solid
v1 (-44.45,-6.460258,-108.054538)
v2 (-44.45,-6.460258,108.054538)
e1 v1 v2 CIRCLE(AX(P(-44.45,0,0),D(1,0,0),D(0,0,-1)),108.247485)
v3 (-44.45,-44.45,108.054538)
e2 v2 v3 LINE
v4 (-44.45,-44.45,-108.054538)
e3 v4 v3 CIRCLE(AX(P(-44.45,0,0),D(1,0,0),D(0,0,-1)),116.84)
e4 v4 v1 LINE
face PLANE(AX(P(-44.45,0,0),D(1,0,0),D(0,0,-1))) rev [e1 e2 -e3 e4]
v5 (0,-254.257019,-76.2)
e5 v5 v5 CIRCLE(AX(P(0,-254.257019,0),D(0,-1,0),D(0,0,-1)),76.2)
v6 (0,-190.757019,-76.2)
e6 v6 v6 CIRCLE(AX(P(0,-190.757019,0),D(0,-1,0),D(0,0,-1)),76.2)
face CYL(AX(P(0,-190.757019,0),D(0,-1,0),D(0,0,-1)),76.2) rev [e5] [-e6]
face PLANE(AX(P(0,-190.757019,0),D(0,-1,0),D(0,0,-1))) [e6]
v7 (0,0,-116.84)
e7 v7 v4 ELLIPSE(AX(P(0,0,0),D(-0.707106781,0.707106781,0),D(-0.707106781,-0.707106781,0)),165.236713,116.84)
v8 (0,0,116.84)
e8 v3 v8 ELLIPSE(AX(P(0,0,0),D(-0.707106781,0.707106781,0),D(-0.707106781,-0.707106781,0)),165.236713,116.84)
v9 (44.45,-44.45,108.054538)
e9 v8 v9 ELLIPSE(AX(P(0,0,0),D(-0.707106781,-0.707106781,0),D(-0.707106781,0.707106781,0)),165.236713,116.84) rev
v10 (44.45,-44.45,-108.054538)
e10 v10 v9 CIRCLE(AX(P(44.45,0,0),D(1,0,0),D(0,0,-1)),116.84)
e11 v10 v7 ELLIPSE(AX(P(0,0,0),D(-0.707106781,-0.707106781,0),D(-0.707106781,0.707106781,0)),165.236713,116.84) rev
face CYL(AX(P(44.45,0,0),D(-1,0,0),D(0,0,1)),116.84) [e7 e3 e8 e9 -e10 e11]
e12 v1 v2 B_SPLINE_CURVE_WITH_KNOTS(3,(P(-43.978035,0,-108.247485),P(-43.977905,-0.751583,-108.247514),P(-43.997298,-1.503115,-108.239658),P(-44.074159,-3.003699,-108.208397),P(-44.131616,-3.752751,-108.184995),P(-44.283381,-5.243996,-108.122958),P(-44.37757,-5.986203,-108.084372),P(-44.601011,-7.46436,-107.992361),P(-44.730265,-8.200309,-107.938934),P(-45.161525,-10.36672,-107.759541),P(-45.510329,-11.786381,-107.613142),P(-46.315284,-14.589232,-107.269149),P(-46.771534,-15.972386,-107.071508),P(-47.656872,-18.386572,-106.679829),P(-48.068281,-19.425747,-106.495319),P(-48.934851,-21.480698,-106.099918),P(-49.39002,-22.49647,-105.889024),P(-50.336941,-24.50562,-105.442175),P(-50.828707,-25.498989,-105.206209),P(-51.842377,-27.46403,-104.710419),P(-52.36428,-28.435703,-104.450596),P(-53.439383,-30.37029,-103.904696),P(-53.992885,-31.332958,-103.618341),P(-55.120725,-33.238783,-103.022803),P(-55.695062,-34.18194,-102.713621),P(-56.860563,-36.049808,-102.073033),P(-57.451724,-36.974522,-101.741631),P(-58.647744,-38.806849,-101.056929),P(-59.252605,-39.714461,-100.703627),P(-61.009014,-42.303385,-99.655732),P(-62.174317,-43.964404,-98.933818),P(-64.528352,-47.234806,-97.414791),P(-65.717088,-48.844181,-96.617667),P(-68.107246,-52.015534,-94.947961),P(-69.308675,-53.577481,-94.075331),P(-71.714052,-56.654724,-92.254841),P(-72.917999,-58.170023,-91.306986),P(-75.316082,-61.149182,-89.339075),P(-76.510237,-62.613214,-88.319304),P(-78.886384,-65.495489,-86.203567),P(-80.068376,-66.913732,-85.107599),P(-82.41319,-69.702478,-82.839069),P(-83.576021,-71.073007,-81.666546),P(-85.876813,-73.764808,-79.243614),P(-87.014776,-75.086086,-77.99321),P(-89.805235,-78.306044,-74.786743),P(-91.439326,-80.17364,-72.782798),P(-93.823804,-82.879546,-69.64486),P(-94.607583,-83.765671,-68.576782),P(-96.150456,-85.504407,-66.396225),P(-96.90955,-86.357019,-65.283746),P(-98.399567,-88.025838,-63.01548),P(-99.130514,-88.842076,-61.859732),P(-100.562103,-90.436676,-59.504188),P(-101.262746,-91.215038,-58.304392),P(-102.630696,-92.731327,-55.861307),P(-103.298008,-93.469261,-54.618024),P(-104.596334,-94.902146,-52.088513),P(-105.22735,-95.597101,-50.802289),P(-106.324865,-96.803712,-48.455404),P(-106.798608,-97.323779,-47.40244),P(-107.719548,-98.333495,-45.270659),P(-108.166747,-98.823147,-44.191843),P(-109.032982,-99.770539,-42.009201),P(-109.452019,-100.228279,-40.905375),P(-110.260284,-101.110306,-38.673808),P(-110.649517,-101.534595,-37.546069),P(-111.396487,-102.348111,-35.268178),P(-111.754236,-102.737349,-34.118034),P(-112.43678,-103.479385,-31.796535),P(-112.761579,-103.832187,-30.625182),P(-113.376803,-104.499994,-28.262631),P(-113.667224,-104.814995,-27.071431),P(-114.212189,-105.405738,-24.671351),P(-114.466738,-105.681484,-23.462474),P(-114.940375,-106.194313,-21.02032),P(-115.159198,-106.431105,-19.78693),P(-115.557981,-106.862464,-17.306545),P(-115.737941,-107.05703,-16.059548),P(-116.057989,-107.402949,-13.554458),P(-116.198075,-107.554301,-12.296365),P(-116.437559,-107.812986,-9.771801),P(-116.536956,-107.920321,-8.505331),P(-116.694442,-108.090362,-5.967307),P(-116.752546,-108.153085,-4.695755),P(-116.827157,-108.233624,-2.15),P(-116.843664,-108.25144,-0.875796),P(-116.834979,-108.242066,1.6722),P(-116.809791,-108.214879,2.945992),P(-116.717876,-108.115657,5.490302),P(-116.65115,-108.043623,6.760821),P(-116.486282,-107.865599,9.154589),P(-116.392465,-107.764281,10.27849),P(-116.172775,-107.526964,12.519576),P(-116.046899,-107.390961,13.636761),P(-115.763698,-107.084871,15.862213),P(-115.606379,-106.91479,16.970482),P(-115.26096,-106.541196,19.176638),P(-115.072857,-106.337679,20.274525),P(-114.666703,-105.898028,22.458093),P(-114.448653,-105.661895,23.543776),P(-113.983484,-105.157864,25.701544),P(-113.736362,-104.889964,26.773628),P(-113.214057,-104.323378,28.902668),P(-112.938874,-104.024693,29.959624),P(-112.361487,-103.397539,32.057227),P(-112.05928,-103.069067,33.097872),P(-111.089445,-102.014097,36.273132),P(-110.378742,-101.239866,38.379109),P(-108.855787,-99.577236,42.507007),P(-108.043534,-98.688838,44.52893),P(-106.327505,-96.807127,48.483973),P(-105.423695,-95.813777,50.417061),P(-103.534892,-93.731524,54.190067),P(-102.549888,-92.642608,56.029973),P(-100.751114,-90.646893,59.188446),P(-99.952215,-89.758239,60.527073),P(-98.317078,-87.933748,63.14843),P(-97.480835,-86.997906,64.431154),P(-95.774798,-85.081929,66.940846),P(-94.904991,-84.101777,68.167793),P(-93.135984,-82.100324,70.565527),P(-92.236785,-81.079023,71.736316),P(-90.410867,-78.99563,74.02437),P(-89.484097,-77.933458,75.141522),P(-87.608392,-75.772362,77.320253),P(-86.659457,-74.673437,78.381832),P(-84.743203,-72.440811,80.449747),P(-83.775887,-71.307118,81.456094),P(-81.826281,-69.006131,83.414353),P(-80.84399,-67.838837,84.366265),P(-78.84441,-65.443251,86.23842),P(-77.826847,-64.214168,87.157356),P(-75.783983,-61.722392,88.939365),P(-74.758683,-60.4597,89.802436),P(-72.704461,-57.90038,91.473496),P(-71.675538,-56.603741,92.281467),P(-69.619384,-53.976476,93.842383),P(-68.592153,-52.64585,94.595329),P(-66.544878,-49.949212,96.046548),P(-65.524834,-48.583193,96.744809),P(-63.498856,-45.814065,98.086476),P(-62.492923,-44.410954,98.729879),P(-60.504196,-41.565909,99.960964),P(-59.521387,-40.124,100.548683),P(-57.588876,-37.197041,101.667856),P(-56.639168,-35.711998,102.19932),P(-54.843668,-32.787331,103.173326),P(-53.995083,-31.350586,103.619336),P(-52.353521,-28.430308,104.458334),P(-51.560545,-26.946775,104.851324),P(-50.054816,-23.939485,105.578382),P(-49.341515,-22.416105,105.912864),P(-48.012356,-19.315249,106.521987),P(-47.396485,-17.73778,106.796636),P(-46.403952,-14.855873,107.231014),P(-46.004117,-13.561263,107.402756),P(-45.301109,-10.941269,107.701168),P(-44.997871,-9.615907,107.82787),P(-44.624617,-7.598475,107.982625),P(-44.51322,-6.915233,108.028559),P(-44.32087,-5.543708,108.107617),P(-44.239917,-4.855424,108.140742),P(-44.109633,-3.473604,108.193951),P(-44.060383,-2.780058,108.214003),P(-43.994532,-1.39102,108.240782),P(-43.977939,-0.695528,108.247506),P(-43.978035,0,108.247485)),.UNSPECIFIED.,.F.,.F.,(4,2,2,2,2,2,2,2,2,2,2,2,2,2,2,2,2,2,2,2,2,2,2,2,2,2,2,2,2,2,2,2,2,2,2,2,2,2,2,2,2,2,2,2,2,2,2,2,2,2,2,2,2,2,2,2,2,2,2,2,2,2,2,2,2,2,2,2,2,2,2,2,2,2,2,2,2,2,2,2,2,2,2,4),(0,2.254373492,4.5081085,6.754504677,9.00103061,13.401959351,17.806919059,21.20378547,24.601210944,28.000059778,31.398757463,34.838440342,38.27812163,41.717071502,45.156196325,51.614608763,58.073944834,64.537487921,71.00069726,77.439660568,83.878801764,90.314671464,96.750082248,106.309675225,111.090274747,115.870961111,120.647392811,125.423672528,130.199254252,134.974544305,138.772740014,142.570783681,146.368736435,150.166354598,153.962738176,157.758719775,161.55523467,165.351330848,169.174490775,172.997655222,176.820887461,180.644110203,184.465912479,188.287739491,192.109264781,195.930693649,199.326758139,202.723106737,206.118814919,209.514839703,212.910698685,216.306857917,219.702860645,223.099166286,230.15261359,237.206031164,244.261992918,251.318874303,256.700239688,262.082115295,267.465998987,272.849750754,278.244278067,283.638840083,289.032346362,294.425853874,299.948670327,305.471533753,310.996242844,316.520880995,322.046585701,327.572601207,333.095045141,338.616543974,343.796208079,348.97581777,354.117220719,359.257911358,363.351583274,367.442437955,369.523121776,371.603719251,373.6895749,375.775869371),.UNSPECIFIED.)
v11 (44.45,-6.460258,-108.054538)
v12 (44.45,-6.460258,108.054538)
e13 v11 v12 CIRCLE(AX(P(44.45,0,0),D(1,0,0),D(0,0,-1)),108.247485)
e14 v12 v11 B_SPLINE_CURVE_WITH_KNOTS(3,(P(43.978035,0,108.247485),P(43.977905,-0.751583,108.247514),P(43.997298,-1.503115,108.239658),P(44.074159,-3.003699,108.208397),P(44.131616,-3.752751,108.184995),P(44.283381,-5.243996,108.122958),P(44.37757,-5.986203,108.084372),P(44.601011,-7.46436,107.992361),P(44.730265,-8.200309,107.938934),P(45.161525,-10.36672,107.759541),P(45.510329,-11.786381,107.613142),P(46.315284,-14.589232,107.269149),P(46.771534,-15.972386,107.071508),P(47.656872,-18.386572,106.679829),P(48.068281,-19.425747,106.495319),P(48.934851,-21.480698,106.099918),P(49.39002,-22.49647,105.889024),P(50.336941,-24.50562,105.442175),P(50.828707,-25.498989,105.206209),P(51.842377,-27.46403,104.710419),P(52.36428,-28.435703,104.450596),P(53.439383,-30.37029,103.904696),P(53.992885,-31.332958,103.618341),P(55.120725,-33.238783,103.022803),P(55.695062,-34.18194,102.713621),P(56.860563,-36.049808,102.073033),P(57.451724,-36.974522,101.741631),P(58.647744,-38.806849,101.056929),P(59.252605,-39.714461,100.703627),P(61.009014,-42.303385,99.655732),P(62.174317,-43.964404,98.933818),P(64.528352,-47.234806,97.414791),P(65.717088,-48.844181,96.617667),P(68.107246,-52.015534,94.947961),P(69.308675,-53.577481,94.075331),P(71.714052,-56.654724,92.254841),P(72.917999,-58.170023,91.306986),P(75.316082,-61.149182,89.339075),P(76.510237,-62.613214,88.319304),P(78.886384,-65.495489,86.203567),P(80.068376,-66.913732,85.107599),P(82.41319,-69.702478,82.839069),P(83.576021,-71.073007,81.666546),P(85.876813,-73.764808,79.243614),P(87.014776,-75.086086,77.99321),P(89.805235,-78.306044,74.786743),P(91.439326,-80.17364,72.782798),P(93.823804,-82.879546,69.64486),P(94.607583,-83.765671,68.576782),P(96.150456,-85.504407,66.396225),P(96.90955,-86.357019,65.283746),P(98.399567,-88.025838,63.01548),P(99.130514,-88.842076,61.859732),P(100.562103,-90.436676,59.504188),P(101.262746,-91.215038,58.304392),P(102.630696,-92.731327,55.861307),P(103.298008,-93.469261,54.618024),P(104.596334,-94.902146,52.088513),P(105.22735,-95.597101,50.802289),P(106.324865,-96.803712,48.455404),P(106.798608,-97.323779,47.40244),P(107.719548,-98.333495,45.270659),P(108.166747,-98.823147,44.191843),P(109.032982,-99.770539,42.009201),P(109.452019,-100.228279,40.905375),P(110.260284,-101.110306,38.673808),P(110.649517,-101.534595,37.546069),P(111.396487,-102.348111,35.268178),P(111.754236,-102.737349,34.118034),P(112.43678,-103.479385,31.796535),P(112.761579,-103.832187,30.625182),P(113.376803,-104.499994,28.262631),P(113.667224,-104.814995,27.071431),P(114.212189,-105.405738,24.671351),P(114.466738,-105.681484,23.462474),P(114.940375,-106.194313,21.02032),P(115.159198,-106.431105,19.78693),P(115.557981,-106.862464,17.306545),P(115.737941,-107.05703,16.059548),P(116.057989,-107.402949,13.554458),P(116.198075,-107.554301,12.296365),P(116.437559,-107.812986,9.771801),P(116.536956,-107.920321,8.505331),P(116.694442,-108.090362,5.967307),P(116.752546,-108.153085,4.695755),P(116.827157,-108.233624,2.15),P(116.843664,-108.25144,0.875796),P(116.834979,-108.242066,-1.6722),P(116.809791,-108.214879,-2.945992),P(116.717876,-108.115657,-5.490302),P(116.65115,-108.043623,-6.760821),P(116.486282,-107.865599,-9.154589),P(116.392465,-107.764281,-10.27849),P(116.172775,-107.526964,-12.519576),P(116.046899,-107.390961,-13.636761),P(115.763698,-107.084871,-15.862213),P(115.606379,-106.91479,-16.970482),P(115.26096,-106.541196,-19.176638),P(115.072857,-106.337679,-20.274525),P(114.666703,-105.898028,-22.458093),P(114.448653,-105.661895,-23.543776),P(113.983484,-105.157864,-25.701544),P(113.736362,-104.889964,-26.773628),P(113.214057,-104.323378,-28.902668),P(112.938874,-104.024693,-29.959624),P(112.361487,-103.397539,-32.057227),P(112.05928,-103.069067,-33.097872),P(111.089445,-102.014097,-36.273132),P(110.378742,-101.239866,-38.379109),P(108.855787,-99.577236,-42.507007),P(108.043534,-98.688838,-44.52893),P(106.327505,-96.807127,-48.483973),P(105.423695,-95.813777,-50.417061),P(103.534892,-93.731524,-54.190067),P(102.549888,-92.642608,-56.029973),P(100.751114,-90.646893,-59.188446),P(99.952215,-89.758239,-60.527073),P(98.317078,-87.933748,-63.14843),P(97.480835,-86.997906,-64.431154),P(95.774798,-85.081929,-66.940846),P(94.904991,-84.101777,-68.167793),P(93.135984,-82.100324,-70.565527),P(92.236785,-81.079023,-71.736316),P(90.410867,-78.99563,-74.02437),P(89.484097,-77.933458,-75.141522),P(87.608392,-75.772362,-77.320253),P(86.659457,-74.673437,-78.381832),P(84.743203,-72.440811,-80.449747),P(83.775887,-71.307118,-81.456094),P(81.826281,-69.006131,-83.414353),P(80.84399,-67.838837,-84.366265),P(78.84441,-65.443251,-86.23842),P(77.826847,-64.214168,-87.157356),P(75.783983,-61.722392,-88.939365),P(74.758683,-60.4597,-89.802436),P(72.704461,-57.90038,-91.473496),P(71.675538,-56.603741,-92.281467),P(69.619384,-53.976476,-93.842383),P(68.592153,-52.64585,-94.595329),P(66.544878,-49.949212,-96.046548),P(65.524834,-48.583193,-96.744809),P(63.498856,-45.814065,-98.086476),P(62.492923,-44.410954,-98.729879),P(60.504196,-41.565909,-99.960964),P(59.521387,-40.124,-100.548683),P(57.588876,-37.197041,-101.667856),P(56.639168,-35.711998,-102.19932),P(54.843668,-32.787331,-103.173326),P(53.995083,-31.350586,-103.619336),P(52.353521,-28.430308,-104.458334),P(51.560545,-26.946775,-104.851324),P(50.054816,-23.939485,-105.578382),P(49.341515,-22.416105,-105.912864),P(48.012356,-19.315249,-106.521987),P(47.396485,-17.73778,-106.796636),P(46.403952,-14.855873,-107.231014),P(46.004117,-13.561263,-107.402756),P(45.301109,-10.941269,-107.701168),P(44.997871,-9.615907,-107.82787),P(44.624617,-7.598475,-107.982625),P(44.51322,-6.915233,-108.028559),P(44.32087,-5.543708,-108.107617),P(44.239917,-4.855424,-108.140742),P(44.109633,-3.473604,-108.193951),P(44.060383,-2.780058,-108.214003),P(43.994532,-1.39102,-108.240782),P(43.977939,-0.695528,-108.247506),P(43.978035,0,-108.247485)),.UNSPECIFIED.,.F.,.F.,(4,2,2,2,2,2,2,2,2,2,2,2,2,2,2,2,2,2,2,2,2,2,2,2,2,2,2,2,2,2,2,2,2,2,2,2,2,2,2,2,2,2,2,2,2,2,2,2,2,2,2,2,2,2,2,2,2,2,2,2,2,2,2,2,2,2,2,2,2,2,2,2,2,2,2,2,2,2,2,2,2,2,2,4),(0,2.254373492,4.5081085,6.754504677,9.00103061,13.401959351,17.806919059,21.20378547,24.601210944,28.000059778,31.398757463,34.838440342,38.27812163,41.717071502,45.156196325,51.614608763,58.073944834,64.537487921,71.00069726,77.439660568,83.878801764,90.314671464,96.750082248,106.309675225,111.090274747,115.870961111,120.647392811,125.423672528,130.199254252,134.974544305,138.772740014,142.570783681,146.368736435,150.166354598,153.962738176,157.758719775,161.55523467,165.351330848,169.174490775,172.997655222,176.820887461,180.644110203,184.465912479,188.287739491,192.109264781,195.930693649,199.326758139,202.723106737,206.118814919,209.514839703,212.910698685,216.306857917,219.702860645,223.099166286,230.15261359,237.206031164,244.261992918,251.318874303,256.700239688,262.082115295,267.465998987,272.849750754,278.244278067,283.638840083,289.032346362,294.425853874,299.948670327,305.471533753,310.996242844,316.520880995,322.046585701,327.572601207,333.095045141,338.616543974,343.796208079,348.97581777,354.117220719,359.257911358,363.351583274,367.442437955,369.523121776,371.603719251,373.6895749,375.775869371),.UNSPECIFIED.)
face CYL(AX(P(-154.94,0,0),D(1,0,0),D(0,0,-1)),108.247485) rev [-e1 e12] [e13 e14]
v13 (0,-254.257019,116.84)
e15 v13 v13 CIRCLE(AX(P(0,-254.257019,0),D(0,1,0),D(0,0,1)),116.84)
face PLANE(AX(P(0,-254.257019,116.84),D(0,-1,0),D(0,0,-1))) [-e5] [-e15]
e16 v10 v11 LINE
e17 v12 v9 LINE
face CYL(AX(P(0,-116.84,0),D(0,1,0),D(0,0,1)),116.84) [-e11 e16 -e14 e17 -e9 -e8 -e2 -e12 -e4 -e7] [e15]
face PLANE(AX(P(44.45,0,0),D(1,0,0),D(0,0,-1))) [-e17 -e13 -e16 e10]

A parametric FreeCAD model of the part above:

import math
import FreeCAD as App
import Part
import Sketcher
from FreeCAD import Vector
Q = App.Units.Quantity

doc = App.newDocument("Part")
params = doc.addObject("Spreadsheet::Sheet", "Params")
for row, (alias, value) in enumerate([
    ("sketch1_diameter", "9.2 in"),
    ("sketch1_diameter2", "8.5 in"),
    ("pad1_length", "3.5 in"),
    ("sketch2_radius", "4.6 in"),
    ("revolution_angle", "360 deg"),
    ("sketch4_diameter", "6 in"),
    ("pocket2_length", "2.5 in"),
], start=1):
    params.set(f"A{row}", alias)
    params.set(f"B{row}", "=" + value)
    params.setAlias(f"B{row}", alias)

body = doc.addObject("PartDesign::Body", "Body")

# Sketch on YZ plane
sketch1 = body.newObject("Sketcher::SketchObject", "Sketch")
sketch1.AttachmentSupport = (doc.getObject("YZ_Plane"), [""])
sketch1.MapMode = "FlatFace"
sketch1.addGeometry(Part.Circle(Vector(0, 0, 0), Vector(0, 0, 1), 116.84), False)
sketch1.addGeometry(Part.Circle(Vector(0, 0, 0), Vector(0, 0, 1), 107.95), False)
sketch1.addConstraint(Sketcher.Constraint("Coincident", 0, 3, -1, 1))
sketch1.addConstraint(Sketcher.Constraint("Coincident", 1, 3, -1, 1))
sketch1.addConstraint(Sketcher.Constraint("Diameter", 0, Q("9.2 in")))
sketch1.addConstraint(Sketcher.Constraint("Diameter", 1, Q("8.5 in")))
sketch1.setExpression("Constraints[2]", "Params.sketch1_diameter")
sketch1.setExpression("Constraints[3]", "Params.sketch1_diameter2")
pad1 = body.newObject("PartDesign::Pad", "Pad")
pad1.Profile = sketch1
pad1.setExpression("Length", "Params.pad1_length")
pad1.Midplane = True

# Sketch on YZ plane
sketch2 = body.newObject("Sketcher::SketchObject", "Sketch001")
sketch2.AttachmentSupport = (doc.getObject("YZ_Plane"), [""])
sketch2.MapMode = "FlatFace"
sketch2.addGeometry(Part.LineSegment(Vector(0, 116.84, 0), Vector(-254.257019, 116.84, 0)), False)
sketch2.addGeometry(Part.LineSegment(Vector(-254.257019, 116.84, 0), Vector(-254.257019, 0, 0)), False)
sketch2.addGeometry(Part.LineSegment(Vector(-254.257019, 0, 0), Vector(-116.84, 0, 0)), False)
sketch2.addGeometry(Part.ArcOfCircle(Part.Circle(Vector(0, 0, 0), Vector(0, 0, 1), 116.84), math.radians(90), math.radians(180)), False)
sketch2.addConstraint(Sketcher.Constraint("Coincident", 0, 2, 1, 1))
sketch2.addConstraint(Sketcher.Constraint("Coincident", 1, 2, 2, 1))
sketch2.addConstraint(Sketcher.Constraint("Coincident", 2, 2, 3, 2))
sketch2.addConstraint(Sketcher.Constraint("Tangent", 3, 1, 0, 1))
sketch2.addConstraint(Sketcher.Constraint("Horizontal", 0))
sketch2.addConstraint(Sketcher.Constraint("Vertical", 1))
sketch2.addConstraint(Sketcher.Constraint("Horizontal", 2))
sketch2.addConstraint(Sketcher.Constraint("Coincident", 3, 3, -1, 1))
sketch2.addConstraint(Sketcher.Constraint("PointOnObject", 1, 2, -1))
sketch2.addConstraint(Sketcher.Constraint("Radius", 3, Q("4.6 in")))
sketch2.addConstraint(Sketcher.Constraint("DistanceX", 0, 2, 0, 1, 254.257019))
sketch2.setExpression("Constraints[9]", "Params.sketch2_radius")
revolution = body.newObject("PartDesign::Revolution", "Revolution")
revolution.Profile = sketch2
revolution.ReferenceAxis = (sketch2, ["H_Axis"])
revolution.setExpression("Angle", "Params.revolution_angle")

# Sketch on YZ plane
sketch3 = body.newObject("Sketcher::SketchObject", "Sketch002")
sketch3.AttachmentSupport = (doc.getObject("YZ_Plane"), [""])
sketch3.MapMode = "FlatFace"
sketch3.addGeometry(Part.Circle(Vector(0, 0, 0), Vector(0, 0, 1), 108.247485), False)
sketch3.addConstraint(Sketcher.Constraint("Coincident", 0, 3, -1, 1))
sketch3.addConstraint(Sketcher.Constraint("Diameter", 0, 216.49497))
pocket1 = body.newObject("PartDesign::Pocket", "Pocket")
pocket1.Profile = sketch3
pocket1.Type = "ThroughAll"
pocket1.Midplane = True

# Sketch on XZ plane
sketch4 = body.newObject("Sketcher::SketchObject", "Sketch003")
sketch4.AttachmentSupport = (doc.getObject("XZ_Plane"), [""])
sketch4.MapMode = "FlatFace"
sketch4.AttachmentOffset = App.Placement(Vector(0, 0, 254.257019), App.Rotation())
sketch4.addGeometry(Part.Circle(Vector(0, 0, 0), Vector(0, 0, 1), 76.2), False)
sketch4.addConstraint(Sketcher.Constraint("Coincident", 0, 3, -1, 1))
sketch4.addConstraint(Sketcher.Constraint("Diameter", 0, Q("6 in")))
sketch4.setExpression("Constraints[1]", "Params.sketch4_diameter")
pocket2 = body.newObject("PartDesign::Pocket", "Pocket001")
pocket2.Profile = sketch4
pocket2.setExpression("Length", "Params.pocket2_length")

doc.recompute()
